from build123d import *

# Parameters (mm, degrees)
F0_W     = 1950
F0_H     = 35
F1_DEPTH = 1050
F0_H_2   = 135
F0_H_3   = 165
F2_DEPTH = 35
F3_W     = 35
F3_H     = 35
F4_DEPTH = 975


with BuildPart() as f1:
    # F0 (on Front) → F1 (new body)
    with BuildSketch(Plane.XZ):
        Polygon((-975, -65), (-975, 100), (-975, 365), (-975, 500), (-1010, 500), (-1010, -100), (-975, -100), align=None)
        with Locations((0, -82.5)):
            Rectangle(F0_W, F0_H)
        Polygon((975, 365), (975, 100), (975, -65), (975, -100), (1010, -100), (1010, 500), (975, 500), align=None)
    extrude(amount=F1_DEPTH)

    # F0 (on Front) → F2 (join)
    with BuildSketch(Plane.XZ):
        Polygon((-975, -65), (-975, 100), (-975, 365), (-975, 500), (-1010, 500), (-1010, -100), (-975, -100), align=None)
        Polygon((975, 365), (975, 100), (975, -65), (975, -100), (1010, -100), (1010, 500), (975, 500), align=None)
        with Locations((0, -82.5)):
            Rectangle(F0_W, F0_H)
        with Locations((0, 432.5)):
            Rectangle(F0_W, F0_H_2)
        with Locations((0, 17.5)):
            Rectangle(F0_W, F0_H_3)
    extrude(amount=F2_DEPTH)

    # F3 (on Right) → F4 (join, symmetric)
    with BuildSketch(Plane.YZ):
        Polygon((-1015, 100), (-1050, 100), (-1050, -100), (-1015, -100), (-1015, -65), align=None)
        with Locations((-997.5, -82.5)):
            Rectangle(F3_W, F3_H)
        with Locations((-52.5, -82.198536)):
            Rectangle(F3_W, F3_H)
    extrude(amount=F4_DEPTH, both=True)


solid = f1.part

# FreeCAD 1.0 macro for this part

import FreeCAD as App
import Part
import Sketcher
from FreeCAD import Vector
Q = App.Units.Quantity

doc = App.newDocument("Part")
body = doc.addObject("PartDesign::Body", "Body")

sketch1 = doc.addObject("Sketcher::SketchObject", "Sketch")
body.addObject(sketch1)
sketch1.AttachmentSupport = (doc.XZ_Plane, [""])
sketch1.MapMode = "FlatFace"
sketch1.addGeometry(Part.LineSegment(Vector(-975, 500, 0), Vector(-1010, 500, 0)), False)
sketch1.addGeometry(Part.LineSegment(Vector(-1010, 500, 0), Vector(-1010, -100, 0)), False)
sketch1.addGeometry(Part.LineSegment(Vector(-1010, -100, 0), Vector(1010, -100, 0)), False)
sketch1.addGeometry(Part.LineSegment(Vector(1010, -100, 0), Vector(1010, 500, 0)), False)
sketch1.addGeometry(Part.LineSegment(Vector(1010, 500, 0), Vector(975, 500, 0)), False)
sketch1.addGeometry(Part.LineSegment(Vector(975, 500, 0), Vector(975, -65, 0)), False)
sketch1.addGeometry(Part.LineSegment(Vector(975, -65, 0), Vector(-975, -65, 0)), False)
sketch1.addGeometry(Part.LineSegment(Vector(-975, -65, 0), Vector(-975, 500, 0)), False)
sketch1.addConstraint(Sketcher.Constraint("Coincident", 0, 2, 1, 1))
sketch1.addConstraint(Sketcher.Constraint("Coincident", 1, 2, 2, 1))
sketch1.addConstraint(Sketcher.Constraint("Coincident", 2, 2, 3, 1))
sketch1.addConstraint(Sketcher.Constraint("Coincident", 3, 2, 4, 1))
sketch1.addConstraint(Sketcher.Constraint("Coincident", 4, 2, 5, 1))
sketch1.addConstraint(Sketcher.Constraint("Coincident", 5, 2, 6, 1))
sketch1.addConstraint(Sketcher.Constraint("Coincident", 6, 2, 7, 1))
sketch1.addConstraint(Sketcher.Constraint("Coincident", 7, 2, 0, 1))
sketch1.addConstraint(Sketcher.Constraint("Horizontal", 0))
sketch1.addConstraint(Sketcher.Constraint("Vertical", 1))
sketch1.addConstraint(Sketcher.Constraint("Horizontal", 2))
sketch1.addConstraint(Sketcher.Constraint("Vertical", 3))
sketch1.addConstraint(Sketcher.Constraint("Horizontal", 4))
sketch1.addConstraint(Sketcher.Constraint("Vertical", 5))
sketch1.addConstraint(Sketcher.Constraint("Horizontal", 6))
sketch1.addConstraint(Sketcher.Constraint("Vertical", 7))
sketch1.addConstraint(Sketcher.Constraint("Symmetric", 0, 2, 3, 2, -2))
sketch1.addConstraint(Sketcher.Constraint("Equal", 0, 4))
sketch1.addConstraint(Sketcher.Constraint("DistanceX", 0, 2, 0, 1, Q("35 mm")))
sketch1.addConstraint(Sketcher.Constraint("DistanceX", 2, 1, 2, 2, Q("2020 mm")))
sketch1.addConstraint(Sketcher.Constraint("DistanceY", 1, 2, 1, 1, Q("600 mm")))
sketch1.addConstraint(Sketcher.Constraint("DistanceY", 5, 2, 5, 1, Q("565 mm")))
sketch1.addConstraint(Sketcher.Constraint("DistanceY", -1, 1, 0, 2, Q("500 mm")))
pad1 = doc.addObject("PartDesign::Pad", "Pad")
body.addObject(pad1)
pad1.Profile = sketch1
pad1.Length = 1050

sketch2 = doc.addObject("Sketcher::SketchObject", "Sketch001")
body.addObject(sketch2)
sketch2.AttachmentSupport = (doc.XZ_Plane, [""])
sketch2.MapMode = "FlatFace"
sketch2.addGeometry(Part.LineSegment(Vector(-1010, 500, 0), Vector(-1010, -100, 0)), False)
sketch2.addGeometry(Part.LineSegment(Vector(-1010, -100, 0), Vector(1010, -100, 0)), False)
sketch2.addGeometry(Part.LineSegment(Vector(1010, -100, 0), Vector(1010, 500, 0)), False)
sketch2.addGeometry(Part.LineSegment(Vector(1010, 500, 0), Vector(-1010, 500, 0)), False)
sketch2.addGeometry(Part.LineSegment(Vector(975, 365, 0), Vector(975, 100, 0)), False)
sketch2.addGeometry(Part.LineSegment(Vector(975, 100, 0), Vector(-975, 100, 0)), False)
sketch2.addGeometry(Part.LineSegment(Vector(-975, 100, 0), Vector(-975, 365, 0)), False)
sketch2.addGeometry(Part.LineSegment(Vector(-975, 365, 0), Vector(975, 365, 0)), False)
sketch2.addConstraint(Sketcher.Constraint("Coincident", 0, 2, 1, 1))
sketch2.addConstraint(Sketcher.Constraint("Coincident", 1, 2, 2, 1))
sketch2.addConstraint(Sketcher.Constraint("Coincident", 2, 2, 3, 1))
sketch2.addConstraint(Sketcher.Constraint("Coincident", 3, 2, 0, 1))
sketch2.addConstraint(Sketcher.Constraint("Coincident", 4, 2, 5, 1))
sketch2.addConstraint(Sketcher.Constraint("Coincident", 5, 2, 6, 1))
sketch2.addConstraint(Sketcher.Constraint("Coincident", 6, 2, 7, 1))
sketch2.addConstraint(Sketcher.Constraint("Coincident", 7, 2, 4, 1))
sketch2.addConstraint(Sketcher.Constraint("Vertical", 0))
sketch2.addConstraint(Sketcher.Constraint("Horizontal", 1))
sketch2.addConstraint(Sketcher.Constraint("Vertical", 2))
sketch2.addConstraint(Sketcher.Constraint("Horizontal", 3))
sketch2.addConstraint(Sketcher.Constraint("Vertical", 4))
sketch2.addConstraint(Sketcher.Constraint("Horizontal", 5))
sketch2.addConstraint(Sketcher.Constraint("Vertical", 6))
sketch2.addConstraint(Sketcher.Constraint("Horizontal", 7))
sketch2.addConstraint(Sketcher.Constraint("DistanceX", 1, 1, 1, 2, Q("2020 mm")))
sketch2.addConstraint(Sketcher.Constraint("DistanceX", 5, 2, 5, 1, Q("1950 mm")))
sketch2.addConstraint(Sketcher.Constraint("DistanceY", 0, 2, 0, 1, Q("600 mm")))
sketch2.addConstraint(Sketcher.Constraint("DistanceY", 4, 2, 4, 1, Q("265 mm")))
sketch2.addConstraint(Sketcher.Constraint("DistanceX", 0, 2, -1, 1, Q("1010 mm")))
sketch2.addConstraint(Sketcher.Constraint("DistanceY", 0, 2, -1, 1, Q("100 mm")))
sketch2.addConstraint(Sketcher.Constraint("DistanceX", -1, 1, 4, 2, Q("975 mm")))
sketch2.addConstraint(Sketcher.Constraint("DistanceY", -1, 1, 4, 2, Q("100 mm")))
pad2 = doc.addObject("PartDesign::Pad", "Pad001")
body.addObject(pad2)
pad2.Profile = sketch2
pad2.Length = 35

sketch3 = doc.addObject("Sketcher::SketchObject", "Sketch002")
body.addObject(sketch3)
sketch3.AttachmentSupport = (doc.YZ_Plane, [""])
sketch3.MapMode = "FlatFace"
sketch3.addGeometry(Part.LineSegment(Vector(-1015, 100, 0), Vector(-1050, 100, 0)), False)
sketch3.addGeometry(Part.LineSegment(Vector(-1050, 100, 0), Vector(-1050, -100, 0)), False)
sketch3.addGeometry(Part.LineSegment(Vector(-1050, -100, 0), Vector(-980, -100, 0)), False)
sketch3.addGeometry(Part.LineSegment(Vector(-980, -100, 0), Vector(-980, -65, 0)), False)
sketch3.addGeometry(Part.LineSegment(Vector(-980, -65, 0), Vector(-1015, -65, 0)), False)
sketch3.addGeometry(Part.LineSegment(Vector(-1015, -65, 0), Vector(-1015, 100, 0)), False)
sketch3.addGeometry(Part.LineSegment(Vector(-70, -64.698536, 0), Vector(-70, -99.698536, 0)), False)
sketch3.addGeometry(Part.LineSegment(Vector(-70, -99.698536, 0), Vector(-35, -99.698536, 0)), False)
sketch3.addGeometry(Part.LineSegment(Vector(-35, -99.698536, 0), Vector(-35, -64.698536, 0)), False)
sketch3.addGeometry(Part.LineSegment(Vector(-35, -64.698536, 0), Vector(-70, -64.698536, 0)), False)
sketch3.addConstraint(Sketcher.Constraint("Coincident", 0, 2, 1, 1))
sketch3.addConstraint(Sketcher.Constraint("Coincident", 1, 2, 2, 1))
sketch3.addConstraint(Sketcher.Constraint("Coincident", 2, 2, 3, 1))
sketch3.addConstraint(Sketcher.Constraint("Coincident", 3, 2, 4, 1))
sketch3.addConstraint(Sketcher.Constraint("Coincident", 4, 2, 5, 1))
sketch3.addConstraint(Sketcher.Constraint("Coincident", 5, 2, 0, 1))
sketch3.addConstraint(Sketcher.Constraint("Coincident", 6, 2, 7, 1))
sketch3.addConstraint(Sketcher.Constraint("Coincident", 7, 2, 8, 1))
sketch3.addConstraint(Sketcher.Constraint("Coincident", 8, 2, 9, 1))
sketch3.addConstraint(Sketcher.Constraint("Coincident", 9, 2, 6, 1))
sketch3.addConstraint(Sketcher.Constraint("Horizontal", 0))
sketch3.addConstraint(Sketcher.Constraint("Vertical", 1))
sketch3.addConstraint(Sketcher.Constraint("Horizontal", 2))
sketch3.addConstraint(Sketcher.Constraint("Vertical", 3))
sketch3.addConstraint(Sketcher.Constraint("Horizontal", 4))
sketch3.addConstraint(Sketcher.Constraint("Vertical", 5))
sketch3.addConstraint(Sketcher.Constraint("Vertical", 6))
sketch3.addConstraint(Sketcher.Constraint("Horizontal", 7))
sketch3.addConstraint(Sketcher.Constraint("Vertical", 8))
sketch3.addConstraint(Sketcher.Constraint("Horizontal", 9))
sketch3.addConstraint(Sketcher.Constraint("Equal", 0, 4))
sketch3.addConstraint(Sketcher.Constraint("Equal", 4, 7))
sketch3.addConstraint(Sketcher.Constraint("Equal", 9, 3))
sketch3.addConstraint(Sketcher.Constraint("Equal", 3, 6))
sketch3.addConstraint(Sketcher.Constraint("DistanceX", 0, 2, 0, 1, Q("35 mm")))
sketch3.addConstraint(Sketcher.Constraint("DistanceY", 1, 2, 1, 1, Q("200 mm")))
sketch3.addConstraint(Sketcher.Constraint("DistanceX", 0, 2, -1, 1, Q("1050 mm")))
sketch3.addConstraint(Sketcher.Constraint("DistanceY", -1, 1, 0, 2, Q("100 mm")))
sketch3.addConstraint(Sketcher.Constraint("DistanceX", 6, 2, -1, 1, Q("70 mm")))
sketch3.addConstraint(Sketcher.Constraint("DistanceY", 6, 2, -1, 1, Q("99.698536 mm")))
pad3 = doc.addObject("PartDesign::Pad", "Pad002")
body.addObject(pad3)
pad3.Profile = sketch3
pad3.Length = 1950
pad3.Midplane = True

doc.recompute()
